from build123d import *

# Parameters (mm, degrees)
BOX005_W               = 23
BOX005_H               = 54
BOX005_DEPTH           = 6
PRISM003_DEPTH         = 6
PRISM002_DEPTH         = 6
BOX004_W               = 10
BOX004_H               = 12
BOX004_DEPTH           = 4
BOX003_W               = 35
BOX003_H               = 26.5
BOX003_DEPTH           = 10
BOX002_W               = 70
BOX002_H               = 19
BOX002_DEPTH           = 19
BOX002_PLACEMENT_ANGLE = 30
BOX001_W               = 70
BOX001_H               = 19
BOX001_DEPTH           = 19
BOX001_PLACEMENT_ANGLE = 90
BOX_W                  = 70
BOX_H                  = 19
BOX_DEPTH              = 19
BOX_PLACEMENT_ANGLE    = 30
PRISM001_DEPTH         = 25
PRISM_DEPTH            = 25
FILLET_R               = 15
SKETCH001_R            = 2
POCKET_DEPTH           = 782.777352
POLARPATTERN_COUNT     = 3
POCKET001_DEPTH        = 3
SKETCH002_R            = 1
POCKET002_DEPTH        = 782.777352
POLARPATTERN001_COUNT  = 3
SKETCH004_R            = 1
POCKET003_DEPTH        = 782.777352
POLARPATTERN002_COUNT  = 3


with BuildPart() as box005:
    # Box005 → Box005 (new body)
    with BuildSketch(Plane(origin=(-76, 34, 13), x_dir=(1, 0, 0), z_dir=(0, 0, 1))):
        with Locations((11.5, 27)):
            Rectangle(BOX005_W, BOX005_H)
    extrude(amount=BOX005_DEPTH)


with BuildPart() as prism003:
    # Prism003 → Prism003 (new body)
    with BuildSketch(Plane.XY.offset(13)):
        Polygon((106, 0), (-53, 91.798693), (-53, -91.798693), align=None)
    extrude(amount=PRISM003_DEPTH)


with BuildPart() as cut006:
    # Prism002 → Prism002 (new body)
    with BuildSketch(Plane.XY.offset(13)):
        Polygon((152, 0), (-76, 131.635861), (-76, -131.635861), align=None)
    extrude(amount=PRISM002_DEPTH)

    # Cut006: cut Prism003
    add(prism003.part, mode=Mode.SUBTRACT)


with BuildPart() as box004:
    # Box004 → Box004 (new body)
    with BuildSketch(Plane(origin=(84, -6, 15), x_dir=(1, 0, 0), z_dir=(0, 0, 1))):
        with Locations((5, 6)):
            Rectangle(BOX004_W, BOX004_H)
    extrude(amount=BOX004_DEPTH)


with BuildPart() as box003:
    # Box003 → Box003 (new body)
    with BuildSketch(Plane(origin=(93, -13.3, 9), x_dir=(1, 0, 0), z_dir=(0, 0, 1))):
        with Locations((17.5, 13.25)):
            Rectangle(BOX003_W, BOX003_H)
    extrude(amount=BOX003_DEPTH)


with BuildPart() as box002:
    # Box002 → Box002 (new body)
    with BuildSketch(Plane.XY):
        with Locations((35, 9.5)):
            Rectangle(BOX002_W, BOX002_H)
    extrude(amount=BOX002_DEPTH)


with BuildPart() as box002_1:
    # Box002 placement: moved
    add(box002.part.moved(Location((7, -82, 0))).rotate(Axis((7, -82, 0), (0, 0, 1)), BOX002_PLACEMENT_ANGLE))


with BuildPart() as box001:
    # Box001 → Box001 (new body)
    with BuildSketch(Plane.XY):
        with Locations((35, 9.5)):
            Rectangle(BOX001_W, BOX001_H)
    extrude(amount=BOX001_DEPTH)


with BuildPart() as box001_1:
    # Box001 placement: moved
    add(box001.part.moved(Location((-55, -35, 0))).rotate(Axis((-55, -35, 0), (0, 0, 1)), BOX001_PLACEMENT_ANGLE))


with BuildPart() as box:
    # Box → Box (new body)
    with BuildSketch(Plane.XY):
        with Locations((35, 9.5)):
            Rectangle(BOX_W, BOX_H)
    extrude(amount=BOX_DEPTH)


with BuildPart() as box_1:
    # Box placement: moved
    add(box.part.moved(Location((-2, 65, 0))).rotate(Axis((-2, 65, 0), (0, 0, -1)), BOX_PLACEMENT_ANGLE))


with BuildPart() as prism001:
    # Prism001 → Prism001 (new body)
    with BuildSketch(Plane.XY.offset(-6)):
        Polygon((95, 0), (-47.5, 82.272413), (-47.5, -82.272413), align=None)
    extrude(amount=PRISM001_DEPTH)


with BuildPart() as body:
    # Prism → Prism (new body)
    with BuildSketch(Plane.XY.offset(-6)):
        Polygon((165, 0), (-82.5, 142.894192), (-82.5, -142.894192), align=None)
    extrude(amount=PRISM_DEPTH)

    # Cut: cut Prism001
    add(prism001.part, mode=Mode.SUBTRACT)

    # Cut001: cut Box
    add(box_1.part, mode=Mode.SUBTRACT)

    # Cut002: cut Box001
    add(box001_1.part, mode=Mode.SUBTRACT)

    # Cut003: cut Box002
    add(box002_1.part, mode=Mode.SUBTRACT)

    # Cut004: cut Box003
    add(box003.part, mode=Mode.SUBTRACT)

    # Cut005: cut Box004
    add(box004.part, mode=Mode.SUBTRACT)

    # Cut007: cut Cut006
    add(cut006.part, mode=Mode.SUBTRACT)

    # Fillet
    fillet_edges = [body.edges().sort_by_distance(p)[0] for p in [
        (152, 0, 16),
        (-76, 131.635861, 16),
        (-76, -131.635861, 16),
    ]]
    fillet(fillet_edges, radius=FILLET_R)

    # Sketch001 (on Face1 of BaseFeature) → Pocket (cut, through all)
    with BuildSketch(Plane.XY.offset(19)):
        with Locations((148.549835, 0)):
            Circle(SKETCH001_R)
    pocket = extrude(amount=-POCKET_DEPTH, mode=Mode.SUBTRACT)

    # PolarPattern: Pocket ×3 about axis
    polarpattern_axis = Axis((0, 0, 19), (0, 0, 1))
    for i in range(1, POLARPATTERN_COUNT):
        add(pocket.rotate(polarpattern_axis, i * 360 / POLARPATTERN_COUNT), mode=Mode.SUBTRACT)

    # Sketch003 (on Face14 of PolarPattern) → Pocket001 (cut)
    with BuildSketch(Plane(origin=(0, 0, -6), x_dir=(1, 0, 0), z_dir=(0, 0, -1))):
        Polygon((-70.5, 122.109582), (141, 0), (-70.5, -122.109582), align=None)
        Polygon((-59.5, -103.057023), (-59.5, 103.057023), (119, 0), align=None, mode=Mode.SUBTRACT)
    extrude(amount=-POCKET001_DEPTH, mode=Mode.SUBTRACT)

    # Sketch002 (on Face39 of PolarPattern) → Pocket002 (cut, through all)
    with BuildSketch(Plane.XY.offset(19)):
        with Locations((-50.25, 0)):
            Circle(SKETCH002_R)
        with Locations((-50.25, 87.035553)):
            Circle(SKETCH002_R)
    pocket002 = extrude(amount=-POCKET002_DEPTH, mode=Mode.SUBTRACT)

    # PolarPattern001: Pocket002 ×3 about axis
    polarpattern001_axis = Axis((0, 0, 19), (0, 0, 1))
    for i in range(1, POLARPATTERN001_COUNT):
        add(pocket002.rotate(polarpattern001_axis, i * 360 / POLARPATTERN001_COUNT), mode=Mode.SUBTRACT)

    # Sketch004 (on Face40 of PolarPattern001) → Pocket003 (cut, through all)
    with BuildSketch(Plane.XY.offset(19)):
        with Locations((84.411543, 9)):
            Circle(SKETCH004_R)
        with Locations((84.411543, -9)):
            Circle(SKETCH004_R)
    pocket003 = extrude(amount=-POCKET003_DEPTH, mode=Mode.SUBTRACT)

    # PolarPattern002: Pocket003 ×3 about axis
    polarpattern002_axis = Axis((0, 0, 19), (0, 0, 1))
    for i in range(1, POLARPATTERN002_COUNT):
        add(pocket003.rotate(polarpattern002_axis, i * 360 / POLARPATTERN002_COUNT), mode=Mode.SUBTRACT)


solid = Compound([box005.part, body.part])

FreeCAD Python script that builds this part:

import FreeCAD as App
import Part
import Sketcher
from FreeCAD import Vector
Q = App.Units.Quantity


def edges_at(feature, points):
    """Names of the edges that pass closest to the given points."""
    edges = feature.Shape.Edges
    near = lambda p: min(range(len(edges)), key=lambda i: edges[i].distToShape(Part.Vertex(*p))[0])
    return sorted({f"Edge{near(p) + 1}" for p in points})

doc = App.newDocument("Part")
body = doc.addObject("PartDesign::Body", "Body")

# Sketch on XY plane
sketch1 = doc.addObject("Sketcher::SketchObject", "Sketch")
body.addObject(sketch1)
sketch1.AttachmentSupport = (doc.XY_Plane, [""])
sketch1.MapMode = "FlatFace"
sketch1.AttachmentOffset = App.Placement(Vector(0, 0, 13), App.Rotation())
sketch1.addGeometry([
    Part.LineSegment(Vector(-76, 88, 0), Vector(-76, 34, 0)),
    Part.LineSegment(Vector(-76, 34, 0), Vector(-53, 34, 0)),
    Part.LineSegment(Vector(-53, 34, 0), Vector(-53, 88, 0)),
    Part.LineSegment(Vector(-53, 88, 0), Vector(-76, 88, 0)),
], False)
sketch1.addConstraint([
    Sketcher.Constraint("Coincident", 0, 2, 1, 1),
    Sketcher.Constraint("Coincident", 1, 2, 2, 1),
    Sketcher.Constraint("Coincident", 2, 2, 3, 1),
    Sketcher.Constraint("Coincident", 3, 2, 0, 1),
    Sketcher.Constraint("Vertical", 0),
    Sketcher.Constraint("Horizontal", 1),
    Sketcher.Constraint("Vertical", 2),
    Sketcher.Constraint("Horizontal", 3),
    Sketcher.Constraint("DistanceX", 1, 1, 1, 2, 23.0),
    Sketcher.Constraint("DistanceY", 0, 2, 0, 1, 54.0),
    Sketcher.Constraint("DistanceX", 0, 2, -1, 1, 76.0),
    Sketcher.Constraint("DistanceY", -1, 1, 0, 2, 34.0),
])
pad1 = doc.addObject("PartDesign::Pad", "Pad")
body.addObject(pad1)
pad1.Profile = sketch1
pad1.Length = 6
body2 = doc.addObject("PartDesign::Body", "Body001")

# Sketch on XY plane
sketch2 = doc.addObject("Sketcher::SketchObject", "Sketch001")
body2.addObject(sketch2)
sketch2.AttachmentSupport = (doc.getObject("XY_Plane001"), [""])
sketch2.MapMode = "FlatFace"
sketch2.AttachmentOffset = App.Placement(Vector(0, 0, 13), App.Rotation())
sketch2.addGeometry([
    Part.LineSegment(Vector(106, 0, 0), Vector(-53, 92, 0)),
    Part.LineSegment(Vector(-53, 92, 0), Vector(-53, -92, 0)),
    Part.LineSegment(Vector(-53, -92, 0), Vector(106, 0, 0)),
], False)
sketch2.addConstraint([
    Sketcher.Constraint("Coincident", 0, 2, 1, 1),
    Sketcher.Constraint("Coincident", 1, 2, 2, 1),
    Sketcher.Constraint("Coincident", 2, 2, 0, 1),
    Sketcher.Constraint("Vertical", 1),
    Sketcher.Constraint("PointOnObject", 2, 2, -1),
    Sketcher.Constraint("Equal", 0, 2),
    Sketcher.Constraint("Angle", 0, Q("150 deg")),
    Sketcher.Constraint("DistanceX", 0, 2, -1, 1, 53.0),
    Sketcher.Constraint("DistanceX", -1, 1, 2, 2, 106.0),
])
pad2 = doc.addObject("PartDesign::Pad", "Pad001")
body2.addObject(pad2)
pad2.Profile = sketch2
pad2.Length = 6
body3 = doc.addObject("PartDesign::Body", "Body002")

# Sketch on XY plane
sketch3 = doc.addObject("Sketcher::SketchObject", "Sketch002")
body3.addObject(sketch3)
sketch3.AttachmentSupport = (doc.getObject("XY_Plane002"), [""])
sketch3.MapMode = "FlatFace"
sketch3.AttachmentOffset = App.Placement(Vector(0, 0, 13), App.Rotation())
sketch3.addGeometry([
    Part.LineSegment(Vector(152, 0, 0), Vector(-76, 132, 0)),
    Part.LineSegment(Vector(-76, 132, 0), Vector(-76, -132, 0)),
    Part.LineSegment(Vector(-76, -132, 0), Vector(152, 0, 0)),
], False)
sketch3.addConstraint([
    Sketcher.Constraint("Coincident", 0, 2, 1, 1),
    Sketcher.Constraint("Coincident", 1, 2, 2, 1),
    Sketcher.Constraint("Coincident", 2, 2, 0, 1),
    Sketcher.Constraint("Vertical", 1),
    Sketcher.Constraint("PointOnObject", 2, 2, -1),
    Sketcher.Constraint("Equal", 0, 2),
    Sketcher.Constraint("Angle", 0, Q("150 deg")),
    Sketcher.Constraint("DistanceX", 0, 2, -1, 1, 76.0),
    Sketcher.Constraint("DistanceX", -1, 1, 2, 2, 152.0),
])
pad3 = doc.addObject("PartDesign::Pad", "Pad002")
body3.addObject(pad3)
pad3.Profile = sketch3
pad3.Length = 6
doc.recompute()

boolean = doc.addObject("PartDesign::Boolean", "Boolean")
body3.addObject(boolean)
boolean.Type = "Cut"
boolean.addObjects([body2])
body4 = doc.addObject("PartDesign::Body", "Body003")

# Sketch on XY plane
sketch4 = doc.addObject("Sketcher::SketchObject", "Sketch003")
body4.addObject(sketch4)
sketch4.AttachmentSupport = (doc.getObject("XY_Plane003"), [""])
sketch4.MapMode = "FlatFace"
sketch4.AttachmentOffset = App.Placement(Vector(0, 0, 15), App.Rotation())
sketch4.addGeometry([
    Part.LineSegment(Vector(84, 6, 0), Vector(84, -6, 0)),
    Part.LineSegment(Vector(84, -6, 0), Vector(94, -6, 0)),
    Part.LineSegment(Vector(94, -6, 0), Vector(94, 6, 0)),
    Part.LineSegment(Vector(94, 6, 0), Vector(84, 6, 0)),
], False)
sketch4.addConstraint([
    Sketcher.Constraint("Coincident", 0, 2, 1, 1),
    Sketcher.Constraint("Coincident", 1, 2, 2, 1),
    Sketcher.Constraint("Coincident", 2, 2, 3, 1),
    Sketcher.Constraint("Coincident", 3, 2, 0, 1),
    Sketcher.Constraint("Vertical", 0),
    Sketcher.Constraint("Horizontal", 1),
    Sketcher.Constraint("Vertical", 2),
    Sketcher.Constraint("Horizontal", 3),
    Sketcher.Constraint("DistanceX", 1, 1, 1, 2, 10.0),
    Sketcher.Constraint("DistanceY", 0, 2, 0, 1, 12.0),
    Sketcher.Constraint("DistanceX", -1, 1, 0, 2, 84.0),
    Sketcher.Constraint("DistanceY", 0, 2, -1, 1, 6.0),
])
pad4 = doc.addObject("PartDesign::Pad", "Pad003")
body4.addObject(pad4)
pad4.Profile = sketch4
pad4.Length = 4
body5 = doc.addObject("PartDesign::Body", "Body004")

# Sketch on XY plane
sketch5 = doc.addObject("Sketcher::SketchObject", "Sketch004")
body5.addObject(sketch5)
sketch5.AttachmentSupport = (doc.getObject("XY_Plane004"), [""])
sketch5.MapMode = "FlatFace"
sketch5.AttachmentOffset = App.Placement(Vector(0, 0, 9), App.Rotation())
sketch5.addGeometry([
    Part.LineSegment(Vector(93, 13, 0), Vector(93, -13, 0)),
    Part.LineSegment(Vector(93, -13, 0), Vector(128, -13, 0)),
    Part.LineSegment(Vector(128, -13, 0), Vector(128, 13, 0)),
    Part.LineSegment(Vector(128, 13, 0), Vector(93, 13, 0)),
], False)
sketch5.addConstraint([
    Sketcher.Constraint("Coincident", 0, 2, 1, 1),
    Sketcher.Constraint("Coincident", 1, 2, 2, 1),
    Sketcher.Constraint("Coincident", 2, 2, 3, 1),
    Sketcher.Constraint("Coincident", 3, 2, 0, 1),
    Sketcher.Constraint("Vertical", 0),
    Sketcher.Constraint("Horizontal", 1),
    Sketcher.Constraint("Vertical", 2),
    Sketcher.Constraint("Horizontal", 3),
    Sketcher.Constraint("DistanceX", 1, 1, 1, 2, 35.0),
    Sketcher.Constraint("DistanceY", 0, 2, 0, 1, 26.5),
    Sketcher.Constraint("DistanceX", -1, 1, 0, 2, 93.0),
    Sketcher.Constraint("DistanceY", 0, 2, -1, 1, 13.3),
])
pad5 = doc.addObject("PartDesign::Pad", "Pad004")
body5.addObject(pad5)
pad5.Profile = sketch5
pad5.Length = 10
body6 = doc.addObject("PartDesign::Body", "Body005")

# Sketch on XY plane
sketch6 = doc.addObject("Sketcher::SketchObject", "Sketch005")
body6.addObject(sketch6)
sketch6.AttachmentSupport = (doc.getObject("XY_Plane005"), [""])
sketch6.MapMode = "FlatFace"
sketch6.addGeometry([
    Part.LineSegment(Vector(0, 19, 0), Vector(0, 0, 0)),
    Part.LineSegment(Vector(0, 0, 0), Vector(70, 0, 0)),
    Part.LineSegment(Vector(70, 0, 0), Vector(70, 19, 0)),
    Part.LineSegment(Vector(70, 19, 0), Vector(0, 19, 0)),
], False)
sketch6.addConstraint([
    Sketcher.Constraint("Coincident", 0, 2, 1, 1),
    Sketcher.Constraint("Coincident", 1, 2, 2, 1),
    Sketcher.Constraint("Coincident", 2, 2, 3, 1),
    Sketcher.Constraint("Coincident", 3, 2, 0, 1),
    Sketcher.Constraint("Vertical", 0),
    Sketcher.Constraint("Horizontal", 1),
    Sketcher.Constraint("Vertical", 2),
    Sketcher.Constraint("Horizontal", 3),
    Sketcher.Constraint("Coincident", 0, 2, -1, 1),
    Sketcher.Constraint("DistanceX", 1, 1, 1, 2, 70.0),
    Sketcher.Constraint("DistanceY", 0, 2, 0, 1, 19.0),
])
pad6 = doc.addObject("PartDesign::Pad", "Pad005")
body6.addObject(pad6)
pad6.Profile = sketch6
pad6.Length = 19
body7 = doc.addObject("PartDesign::Body", "Body006")
doc.recompute()

body6.Placement = App.Placement(Vector(7, -82, 0), App.Rotation(Vector(0, 0, 1), 30))
boolean2 = doc.addObject("PartDesign::Boolean", "Boolean001")
body7.addObject(boolean2)
boolean2.Type = "Fuse"
boolean2.addObjects([body6])
body8 = doc.addObject("PartDesign::Body", "Body007")

# Sketch on XY plane
sketch7 = doc.addObject("Sketcher::SketchObject", "Sketch006")
body8.addObject(sketch7)
sketch7.AttachmentSupport = (doc.getObject("XY_Plane007"), [""])
sketch7.MapMode = "FlatFace"
sketch7.addGeometry([
    Part.LineSegment(Vector(0, 19, 0), Vector(0, 0, 0)),
    Part.LineSegment(Vector(0, 0, 0), Vector(70, 0, 0)),
    Part.LineSegment(Vector(70, 0, 0), Vector(70, 19, 0)),
    Part.LineSegment(Vector(70, 19, 0), Vector(0, 19, 0)),
], False)
sketch7.addConstraint([
    Sketcher.Constraint("Coincident", 0, 2, 1, 1),
    Sketcher.Constraint("Coincident", 1, 2, 2, 1),
    Sketcher.Constraint("Coincident", 2, 2, 3, 1),
    Sketcher.Constraint("Coincident", 3, 2, 0, 1),
    Sketcher.Constraint("Vertical", 0),
    Sketcher.Constraint("Horizontal", 1),
    Sketcher.Constraint("Vertical", 2),
    Sketcher.Constraint("Horizontal", 3),
    Sketcher.Constraint("Coincident", 0, 2, -1, 1),
    Sketcher.Constraint("DistanceX", 1, 1, 1, 2, 70.0),
    Sketcher.Constraint("DistanceY", 0, 2, 0, 1, 19.0),
])
pad7 = doc.addObject("PartDesign::Pad", "Pad006")
body8.addObject(pad7)
pad7.Profile = sketch7
pad7.Length = 19
body9 = doc.addObject("PartDesign::Body", "Body008")
doc.recompute()

body8.Placement = App.Placement(Vector(-55, -35, 0), App.Rotation(Vector(0, 0, 1), 90))
boolean3 = doc.addObject("PartDesign::Boolean", "Boolean002")
body9.addObject(boolean3)
boolean3.Type = "Fuse"
boolean3.addObjects([body8])
body10 = doc.addObject("PartDesign::Body", "Body009")

# Sketch on XY plane
sketch8 = doc.addObject("Sketcher::SketchObject", "Sketch007")
body10.addObject(sketch8)
sketch8.AttachmentSupport = (doc.getObject("XY_Plane009"), [""])
sketch8.MapMode = "FlatFace"
sketch8.addGeometry([
    Part.LineSegment(Vector(0, 19, 0), Vector(0, 0, 0)),
    Part.LineSegment(Vector(0, 0, 0), Vector(70, 0, 0)),
    Part.LineSegment(Vector(70, 0, 0), Vector(70, 19, 0)),
    Part.LineSegment(Vector(70, 19, 0), Vector(0, 19, 0)),
], False)
sketch8.addConstraint([
    Sketcher.Constraint("Coincident", 0, 2, 1, 1),
    Sketcher.Constraint("Coincident", 1, 2, 2, 1),
    Sketcher.Constraint("Coincident", 2, 2, 3, 1),
    Sketcher.Constraint("Coincident", 3, 2, 0, 1),
    Sketcher.Constraint("Vertical", 0),
    Sketcher.Constraint("Horizontal", 1),
    Sketcher.Constraint("Vertical", 2),
    Sketcher.Constraint("Horizontal", 3),
    Sketcher.Constraint("Coincident", 0, 2, -1, 1),
    Sketcher.Constraint("DistanceX", 1, 1, 1, 2, 70.0),
    Sketcher.Constraint("DistanceY", 0, 2, 0, 1, 19.0),
])
pad8 = doc.addObject("PartDesign::Pad", "Pad007")
body10.addObject(pad8)
pad8.Profile = sketch8
pad8.Length = 19
body11 = doc.addObject("PartDesign::Body", "Body010")
doc.recompute()

body10.Placement = App.Placement(Vector(-2, 65, 0), App.Rotation(Vector(0, 0, -1), 30))
boolean4 = doc.addObject("PartDesign::Boolean", "Boolean003")
body11.addObject(boolean4)
boolean4.Type = "Fuse"
boolean4.addObjects([body10])
body12 = doc.addObject("PartDesign::Body", "Body011")

# Sketch on XY plane
sketch9 = doc.addObject("Sketcher::SketchObject", "Sketch008")
body12.addObject(sketch9)
sketch9.AttachmentSupport = (doc.getObject("XY_Plane011"), [""])
sketch9.MapMode = "FlatFace"
sketch9.AttachmentOffset = App.Placement(Vector(0, 0, -6), App.Rotation())
sketch9.addGeometry([
    Part.LineSegment(Vector(95, 0, 0), Vector(-48, 82, 0)),
    Part.LineSegment(Vector(-48, 82, 0), Vector(-48, -82, 0)),
    Part.LineSegment(Vector(-48, -82, 0), Vector(95, 0, 0)),
], False)
sketch9.addConstraint([
    Sketcher.Constraint("Coincident", 0, 2, 1, 1),
    Sketcher.Constraint("Coincident", 1, 2, 2, 1),
    Sketcher.Constraint("Coincident", 2, 2, 0, 1),
    Sketcher.Constraint("Vertical", 1),
    Sketcher.Constraint("PointOnObject", 2, 2, -1),
    Sketcher.Constraint("Equal", 0, 2),
    Sketcher.Constraint("Angle", 0, Q("150 deg")),
    Sketcher.Constraint("DistanceX", -1, 1, 2, 2, 95.0),
    Sketcher.Constraint("DistanceX", 0, 2, -1, 1, 47.5),
])
pad9 = doc.addObject("PartDesign::Pad", "Pad008")
body12.addObject(pad9)
pad9.Profile = sketch9
pad9.Length = 25
body13 = doc.addObject("PartDesign::Body", "Body012")

# Sketch on XY plane
sketch10 = doc.addObject("Sketcher::SketchObject", "Sketch009")
body13.addObject(sketch10)
sketch10.AttachmentSupport = (doc.getObject("XY_Plane012"), [""])
sketch10.MapMode = "FlatFace"
sketch10.AttachmentOffset = App.Placement(Vector(0, 0, -6), App.Rotation())
sketch10.addGeometry([
    Part.LineSegment(Vector(165, 0, 0), Vector(-82, 143, 0)),
    Part.LineSegment(Vector(-82, 143, 0), Vector(-82, -143, 0)),
    Part.LineSegment(Vector(-82, -143, 0), Vector(165, 0, 0)),
], False)
sketch10.addConstraint([
    Sketcher.Constraint("Coincident", 0, 2, 1, 1),
    Sketcher.Constraint("Coincident", 1, 2, 2, 1),
    Sketcher.Constraint("Coincident", 2, 2, 0, 1),
    Sketcher.Constraint("Vertical", 1),
    Sketcher.Constraint("PointOnObject", 2, 2, -1),
    Sketcher.Constraint("Equal", 0, 2),
    Sketcher.Constraint("Angle", 0, Q("150 deg")),
    Sketcher.Constraint("DistanceX", -1, 1, 2, 2, 165.0),
    Sketcher.Constraint("DistanceX", 0, 2, -1, 1, 82.5),
])
pad10 = doc.addObject("PartDesign::Pad", "Pad009")
body13.addObject(pad10)
pad10.Profile = sketch10
pad10.Length = 25
doc.recompute()

boolean5 = doc.addObject("PartDesign::Boolean", "Boolean004")
body13.addObject(boolean5)
boolean5.Type = "Cut"
boolean5.addObjects([body12])
doc.recompute()

boolean6 = doc.addObject("PartDesign::Boolean", "Boolean005")
body13.addObject(boolean6)
boolean6.Type = "Cut"
boolean6.addObjects([body11])
doc.recompute()

boolean7 = doc.addObject("PartDesign::Boolean", "Boolean006")
body13.addObject(boolean7)
boolean7.Type = "Cut"
boolean7.addObjects([body9])
doc.recompute()

boolean8 = doc.addObject("PartDesign::Boolean", "Boolean007")
body13.addObject(boolean8)
boolean8.Type = "Cut"
boolean8.addObjects([body7])
doc.recompute()

boolean9 = doc.addObject("PartDesign::Boolean", "Boolean008")
body13.addObject(boolean9)
boolean9.Type = "Cut"
boolean9.addObjects([body5])
doc.recompute()

boolean10 = doc.addObject("PartDesign::Boolean", "Boolean009")
body13.addObject(boolean10)
boolean10.Type = "Cut"
boolean10.addObjects([body4])
doc.recompute()

boolean11 = doc.addObject("PartDesign::Boolean", "Boolean010")
body13.addObject(boolean11)
boolean11.Type = "Cut"
boolean11.addObjects([body3])
doc.recompute()

fillet = doc.addObject("PartDesign::Fillet", "Fillet")
body13.addObject(fillet)
fillet.Base = (boolean11, edges_at(boolean11, [(152, 0, 16), (-76, 131.636, 16), (-76, -131.636, 16)]))
fillet.Radius = 15

# Sketch on XY plane
sketch11 = doc.addObject("Sketcher::SketchObject", "Sketch010")
body13.addObject(sketch11)
sketch11.AttachmentSupport = (doc.getObject("XY_Plane012"), [""])
sketch11.MapMode = "FlatFace"
sketch11.AttachmentOffset = App.Placement(Vector(0, 0, 19), App.Rotation())
sketch11.addGeometry(Part.Circle(Vector(148.5, 0, 0), Vector(0, 0, 1), 2), False)
sketch11.addConstraint([
    Sketcher.Constraint("PointOnObject", 0, 3, -1),
    Sketcher.Constraint("Diameter", 0, 4.0),
    Sketcher.Constraint("DistanceX", -1, 1, 0, 3, 148.549835),
])
pocket1 = doc.addObject("PartDesign::Pocket", "Pocket")
body13.addObject(pocket1)
pocket1.Profile = sketch11
pocket1.Type = "ThroughAll"
doc.recompute()

polarpattern = doc.addObject("PartDesign::PolarPattern", "PolarPattern")
body13.addObject(polarpattern)
polarpattern.Originals = [pocket1]
polarpattern.Axis = (doc.getObject("Z_Axis012"), [""])
polarpattern.Angle = 360
polarpattern.Occurrences = 3
body13.Tip = polarpattern

# Sketch on XY plane
sketch12 = doc.addObject("Sketcher::SketchObject", "Sketch011")
body13.addObject(sketch12)
sketch12.AttachmentSupport = (doc.getObject("XY_Plane012"), [""])
sketch12.MapMode = "FlatFace"
sketch12.AttachmentOffset = App.Placement(Vector(0, 0, -6), App.Rotation())
sketch12.addGeometry([
    Part.LineSegment(Vector(141, 0, 0), Vector(-70, -122, 0)),  # 0
    Part.LineSegment(Vector(-70, -122, 0), Vector(-70, 122, 0)),  # 1
    Part.LineSegment(Vector(-70, 122, 0), Vector(141, 0, 0)),  # 2
    Part.LineSegment(Vector(-60, 103, 0), Vector(-60, -103, 0)),  # 3
    Part.LineSegment(Vector(-60, -103, 0), Vector(119, 0, 0)),  # 4
    Part.LineSegment(Vector(119, 0, 0), Vector(-60, 103, 0)),  # 5
], False)
sketch12.addConstraint([
    Sketcher.Constraint("Coincident", 0, 2, 1, 1),
    Sketcher.Constraint("Coincident", 1, 2, 2, 1),
    Sketcher.Constraint("Coincident", 2, 2, 0, 1),
    Sketcher.Constraint("Coincident", 3, 2, 4, 1),
    Sketcher.Constraint("Coincident", 4, 2, 5, 1),
    Sketcher.Constraint("Coincident", 5, 2, 3, 1),
    Sketcher.Constraint("Vertical", 1),
    Sketcher.Constraint("Vertical", 3),
    Sketcher.Constraint("PointOnObject", 2, 2, -1),
    Sketcher.Constraint("PointOnObject", 4, 2, -1),
    Sketcher.Constraint("Parallel", 0, 4),
    Sketcher.Constraint("Parallel", 2, 5),
    Sketcher.Constraint("Equal", 0, 2),
    Sketcher.Constraint("Angle", 0, Q("-150 deg")),
    Sketcher.Constraint("DistanceX", -1, 1, 2, 2, 141.0),
    Sketcher.Constraint("DistanceX", -1, 1, 4, 2, 119.0),
    Sketcher.Constraint("DistanceX", 0, 2, 3, 2, 11.0),
    Sketcher.Constraint("DistanceX", 0, 2, -1, 1, 70.5),
])
pocket2 = doc.addObject("PartDesign::Pocket", "Pocket001")
body13.addObject(pocket2)
pocket2.Profile = sketch12
pocket2.Length = 3
pocket2.Reversed = True

# Sketch on XY plane
sketch13 = doc.addObject("Sketcher::SketchObject", "Sketch012")
body13.addObject(sketch13)
sketch13.AttachmentSupport = (doc.getObject("XY_Plane012"), [""])
sketch13.MapMode = "FlatFace"
sketch13.AttachmentOffset = App.Placement(Vector(0, 0, 19), App.Rotation())
sketch13.addGeometry([
    Part.Circle(Vector(-50.2, 0, 0), Vector(0, 0, 1), 1),
    Part.Circle(Vector(-50.2, 87, 0), Vector(0, 0, 1), 1),
], False)
sketch13.addConstraint([
    Sketcher.Constraint("Equal", 0, 1),
    Sketcher.Constraint("PointOnObject", 0, 3, -1),
    Sketcher.Constraint("Vertical", 0, 3, 1, 3),
    Sketcher.Constraint("Diameter", 0, 2.0),
    Sketcher.Constraint("DistanceX", 0, 3, -1, 1, 50.25),
    Sketcher.Constraint("DistanceY", -1, 1, 1, 3, 87.035553),
])
pocket3 = doc.addObject("PartDesign::Pocket", "Pocket002")
body13.addObject(pocket3)
pocket3.Profile = sketch13
pocket3.Type = "ThroughAll"
doc.recompute()

polarpattern2 = doc.addObject("PartDesign::PolarPattern", "PolarPattern001")
body13.addObject(polarpattern2)
polarpattern2.Originals = [pocket3]
polarpattern2.Axis = (doc.getObject("Z_Axis012"), [""])
polarpattern2.Angle = 360
polarpattern2.Occurrences = 3
body13.Tip = polarpattern2

# Sketch on XY plane
sketch14 = doc.addObject("Sketcher::SketchObject", "Sketch013")
body13.addObject(sketch14)
sketch14.AttachmentSupport = (doc.getObject("XY_Plane012"), [""])
sketch14.MapMode = "FlatFace"
sketch14.AttachmentOffset = App.Placement(Vector(0, 0, 19), App.Rotation())
sketch14.addGeometry([
    Part.Circle(Vector(84.4, 9, 0), Vector(0, 0, 1), 1),
    Part.Circle(Vector(84.4, -9, 0), Vector(0, 0, 1), 1),
], False)
sketch14.addConstraint([
    Sketcher.Constraint("Equal", 0, 1),
    Sketcher.Constraint("Symmetric", 0, 3, 1, 3, -1),
    Sketcher.Constraint("Diameter", 0, 2.0),
    Sketcher.Constraint("DistanceY", -1, 1, 0, 3, 9.0),
    Sketcher.Constraint("DistanceX", -1, 1, 0, 3, 84.411543),
])
pocket4 = doc.addObject("PartDesign::Pocket", "Pocket003")
body13.addObject(pocket4)
pocket4.Profile = sketch14
pocket4.Type = "ThroughAll"
doc.recompute()

polarpattern3 = doc.addObject("PartDesign::PolarPattern", "PolarPattern002")
body13.addObject(polarpattern3)
polarpattern3.Originals = [pocket4]
polarpattern3.Axis = (doc.getObject("Z_Axis012"), [""])
polarpattern3.Angle = 360
polarpattern3.Occurrences = 3
body13.Tip = polarpattern3

doc.recompute()
